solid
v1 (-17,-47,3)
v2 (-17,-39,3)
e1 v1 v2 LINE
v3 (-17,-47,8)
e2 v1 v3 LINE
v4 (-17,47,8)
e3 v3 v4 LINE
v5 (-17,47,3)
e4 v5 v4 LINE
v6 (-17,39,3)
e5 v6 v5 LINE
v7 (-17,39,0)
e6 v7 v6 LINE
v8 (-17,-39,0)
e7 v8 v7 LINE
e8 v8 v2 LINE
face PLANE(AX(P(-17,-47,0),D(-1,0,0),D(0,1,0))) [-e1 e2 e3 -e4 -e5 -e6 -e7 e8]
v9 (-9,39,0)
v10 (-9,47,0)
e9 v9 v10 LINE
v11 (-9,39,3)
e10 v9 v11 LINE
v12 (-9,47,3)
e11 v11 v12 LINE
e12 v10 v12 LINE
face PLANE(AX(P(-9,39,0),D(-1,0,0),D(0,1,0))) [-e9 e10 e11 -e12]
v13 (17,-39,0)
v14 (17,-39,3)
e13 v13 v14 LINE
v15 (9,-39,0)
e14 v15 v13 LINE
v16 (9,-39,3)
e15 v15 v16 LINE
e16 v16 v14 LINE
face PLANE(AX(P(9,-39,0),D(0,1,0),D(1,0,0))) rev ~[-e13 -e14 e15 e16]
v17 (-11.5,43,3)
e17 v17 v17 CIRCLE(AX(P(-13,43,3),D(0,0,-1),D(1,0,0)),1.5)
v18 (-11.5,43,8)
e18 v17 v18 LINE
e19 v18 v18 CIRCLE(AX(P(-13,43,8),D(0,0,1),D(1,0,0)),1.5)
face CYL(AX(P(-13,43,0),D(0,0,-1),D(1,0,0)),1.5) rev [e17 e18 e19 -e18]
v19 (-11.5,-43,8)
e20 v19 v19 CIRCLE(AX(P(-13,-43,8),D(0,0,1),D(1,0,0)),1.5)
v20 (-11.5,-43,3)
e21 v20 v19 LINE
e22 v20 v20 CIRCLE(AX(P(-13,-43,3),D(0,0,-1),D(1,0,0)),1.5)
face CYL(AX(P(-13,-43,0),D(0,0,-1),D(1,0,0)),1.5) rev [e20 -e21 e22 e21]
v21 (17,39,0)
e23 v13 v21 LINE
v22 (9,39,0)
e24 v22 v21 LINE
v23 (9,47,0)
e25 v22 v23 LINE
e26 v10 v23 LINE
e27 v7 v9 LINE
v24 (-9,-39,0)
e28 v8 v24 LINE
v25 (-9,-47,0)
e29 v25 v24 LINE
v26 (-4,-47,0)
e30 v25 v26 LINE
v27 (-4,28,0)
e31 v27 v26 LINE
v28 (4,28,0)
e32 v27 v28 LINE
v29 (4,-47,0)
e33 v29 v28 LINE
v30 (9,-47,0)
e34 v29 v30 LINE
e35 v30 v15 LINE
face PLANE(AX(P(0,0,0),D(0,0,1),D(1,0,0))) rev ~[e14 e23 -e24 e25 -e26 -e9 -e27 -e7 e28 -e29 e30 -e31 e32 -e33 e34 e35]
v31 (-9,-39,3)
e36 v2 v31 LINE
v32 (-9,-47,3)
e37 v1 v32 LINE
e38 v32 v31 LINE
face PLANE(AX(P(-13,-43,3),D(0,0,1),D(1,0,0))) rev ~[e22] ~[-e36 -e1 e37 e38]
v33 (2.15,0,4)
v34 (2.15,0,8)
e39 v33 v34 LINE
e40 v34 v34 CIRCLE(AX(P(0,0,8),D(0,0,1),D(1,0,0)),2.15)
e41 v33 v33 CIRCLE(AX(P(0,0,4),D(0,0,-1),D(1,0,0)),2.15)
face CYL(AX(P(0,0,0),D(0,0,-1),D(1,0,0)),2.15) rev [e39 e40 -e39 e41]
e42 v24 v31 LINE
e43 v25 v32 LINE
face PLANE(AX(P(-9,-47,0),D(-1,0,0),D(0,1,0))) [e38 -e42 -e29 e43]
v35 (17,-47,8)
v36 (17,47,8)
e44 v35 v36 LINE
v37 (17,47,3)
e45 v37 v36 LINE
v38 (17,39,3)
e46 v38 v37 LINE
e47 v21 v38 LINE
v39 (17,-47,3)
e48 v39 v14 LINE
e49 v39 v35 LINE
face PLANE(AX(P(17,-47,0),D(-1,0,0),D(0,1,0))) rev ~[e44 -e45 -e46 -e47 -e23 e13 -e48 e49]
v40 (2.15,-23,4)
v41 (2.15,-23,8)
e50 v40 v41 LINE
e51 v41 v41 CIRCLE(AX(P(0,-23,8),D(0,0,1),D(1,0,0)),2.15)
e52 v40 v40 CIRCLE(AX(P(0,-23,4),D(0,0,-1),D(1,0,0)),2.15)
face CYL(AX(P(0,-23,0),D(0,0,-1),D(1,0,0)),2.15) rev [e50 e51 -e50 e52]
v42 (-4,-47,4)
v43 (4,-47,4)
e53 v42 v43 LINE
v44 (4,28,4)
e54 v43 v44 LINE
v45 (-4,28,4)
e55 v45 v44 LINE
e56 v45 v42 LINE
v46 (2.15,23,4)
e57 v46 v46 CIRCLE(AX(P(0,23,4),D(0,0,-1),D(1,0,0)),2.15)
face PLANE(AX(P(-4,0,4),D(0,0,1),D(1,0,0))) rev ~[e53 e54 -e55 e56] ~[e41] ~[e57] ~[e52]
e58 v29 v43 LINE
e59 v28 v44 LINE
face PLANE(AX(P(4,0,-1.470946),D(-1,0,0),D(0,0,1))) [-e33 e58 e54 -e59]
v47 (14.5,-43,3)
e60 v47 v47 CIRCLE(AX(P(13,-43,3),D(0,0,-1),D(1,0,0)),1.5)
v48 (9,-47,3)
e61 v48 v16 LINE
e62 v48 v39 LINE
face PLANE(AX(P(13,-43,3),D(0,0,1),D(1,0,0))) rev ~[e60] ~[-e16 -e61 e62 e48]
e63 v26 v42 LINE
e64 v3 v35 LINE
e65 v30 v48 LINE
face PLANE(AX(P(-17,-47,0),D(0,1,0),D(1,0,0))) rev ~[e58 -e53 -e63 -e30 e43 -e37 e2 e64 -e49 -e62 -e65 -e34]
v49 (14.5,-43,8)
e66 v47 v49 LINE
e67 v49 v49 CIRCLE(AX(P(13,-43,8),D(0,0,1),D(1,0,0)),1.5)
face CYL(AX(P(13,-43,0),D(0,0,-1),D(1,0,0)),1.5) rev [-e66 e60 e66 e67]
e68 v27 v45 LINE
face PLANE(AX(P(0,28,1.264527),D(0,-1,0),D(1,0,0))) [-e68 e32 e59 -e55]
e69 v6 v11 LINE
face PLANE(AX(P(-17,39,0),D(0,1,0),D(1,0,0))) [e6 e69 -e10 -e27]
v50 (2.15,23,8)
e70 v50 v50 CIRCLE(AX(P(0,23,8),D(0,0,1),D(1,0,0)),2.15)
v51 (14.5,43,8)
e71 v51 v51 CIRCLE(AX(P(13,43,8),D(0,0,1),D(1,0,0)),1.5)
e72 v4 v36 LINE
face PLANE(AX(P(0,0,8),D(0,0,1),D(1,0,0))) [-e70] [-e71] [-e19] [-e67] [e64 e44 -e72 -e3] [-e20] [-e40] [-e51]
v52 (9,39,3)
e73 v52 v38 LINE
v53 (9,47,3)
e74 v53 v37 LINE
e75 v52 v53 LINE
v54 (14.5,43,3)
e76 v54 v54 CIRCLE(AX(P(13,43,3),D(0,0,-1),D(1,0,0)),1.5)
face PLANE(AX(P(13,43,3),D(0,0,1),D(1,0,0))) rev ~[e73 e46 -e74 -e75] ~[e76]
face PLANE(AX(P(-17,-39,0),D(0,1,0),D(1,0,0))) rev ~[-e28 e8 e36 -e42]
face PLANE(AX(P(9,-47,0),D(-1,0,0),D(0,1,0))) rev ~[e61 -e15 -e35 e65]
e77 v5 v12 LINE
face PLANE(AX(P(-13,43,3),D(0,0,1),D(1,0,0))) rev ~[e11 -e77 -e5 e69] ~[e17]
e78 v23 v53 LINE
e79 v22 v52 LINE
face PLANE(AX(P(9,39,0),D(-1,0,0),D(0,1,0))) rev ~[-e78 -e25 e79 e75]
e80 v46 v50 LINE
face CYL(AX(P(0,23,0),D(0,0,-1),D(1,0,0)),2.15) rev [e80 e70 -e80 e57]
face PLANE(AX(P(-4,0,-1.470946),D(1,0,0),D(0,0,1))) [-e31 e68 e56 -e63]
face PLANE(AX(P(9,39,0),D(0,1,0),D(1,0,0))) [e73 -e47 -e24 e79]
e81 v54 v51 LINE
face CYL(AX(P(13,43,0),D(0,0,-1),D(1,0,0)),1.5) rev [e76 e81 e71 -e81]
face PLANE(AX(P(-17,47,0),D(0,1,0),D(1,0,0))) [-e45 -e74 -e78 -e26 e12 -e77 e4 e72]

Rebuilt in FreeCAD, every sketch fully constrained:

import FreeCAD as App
import Part
import Sketcher
Q = App.Units.Quantity


def add_polygon(sketch, points):
    """Adds a closed chain of lines whose ends are joined by coincident constraints."""
    first, n = sketch.GeometryCount, len(points)
    for a, b in zip(points, points[1:] + points[:1]):
        sketch.addGeometry(Part.LineSegment(App.Vector(*a, 0), App.Vector(*b, 0)), False)
    for i in range(n):
        sketch.addConstraint(Sketcher.Constraint("Coincident", first + i, 2, first + (i + 1) % n, 1))

doc = App.newDocument("Part")
body = doc.addObject("PartDesign::Body", "Body")

sketch1 = doc.addObject("Sketcher::SketchObject", "Sketch")
body.addObject(sketch1)
sketch1.AttachmentSupport = (doc.XY_Plane, [""])
sketch1.MapMode = "FlatFace"
add_polygon(sketch1, [(-17, 47), (-17, -47), (17, -47), (17, 47)])
sketch1.addGeometry(Part.Circle(App.Vector(-13, -43, 0), App.Vector(0, 0, 1), 1.5), False)
sketch1.addGeometry(Part.Circle(App.Vector(0, -23, 0), App.Vector(0, 0, 1), 2.1), False)
sketch1.addGeometry(Part.Circle(App.Vector(13, -43, 0), App.Vector(0, 0, 1), 1.5), False)
sketch1.addGeometry(Part.Circle(App.Vector(-13, 43, 0), App.Vector(0, 0, 1), 1.5), False)
sketch1.addGeometry(Part.Circle(App.Vector(0, 0, 0), App.Vector(0, 0, 1), 2.1), False)
sketch1.addGeometry(Part.Circle(App.Vector(0, 23, 0), App.Vector(0, 0, 1), 2.1), False)
sketch1.addGeometry(Part.Circle(App.Vector(13, 43, 0), App.Vector(0, 0, 1), 1.5), False)
sketch1.addConstraint([
    Sketcher.Constraint("Vertical", 0),
    Sketcher.Constraint("Horizontal", 1),
    Sketcher.Constraint("Vertical", 2),
    Sketcher.Constraint("Horizontal", 3),
    Sketcher.Constraint("Coincident", 8, 3, -1, 1),
    Sketcher.Constraint("Equal", 4, 6),
    Sketcher.Constraint("Equal", 6, 7),
    Sketcher.Constraint("Equal", 5, 8),
    Sketcher.Constraint("Equal", 8, 9),
    Sketcher.Constraint("Equal", 7, 10),
    Sketcher.Constraint("Symmetric", 6, 3, 7, 3, -1, 1),
    Sketcher.Constraint("Symmetric", 5, 3, 9, 3, -1, 1),
    Sketcher.Constraint("Symmetric", 4, 3, 10, 3, -1, 1),
    Sketcher.Constraint("Symmetric", 0, 2, 2, 2, -1, 1),
    Sketcher.Constraint("Symmetric", 4, 3, 6, 3, -2),
    Sketcher.Constraint("PointOnObject", 5, 3, -2),
    Sketcher.Constraint("Diameter", 4, Q("3 mm")),
    Sketcher.Constraint("Diameter", 5, Q("4.3 mm")),
    Sketcher.Constraint("DistanceX", 1, 1, 1, 2, Q("34 mm")),
    Sketcher.Constraint("DistanceY", 0, 2, 0, 1, Q("94 mm")),
    Sketcher.Constraint("DistanceX", 4, 3, -1, 1, Q("13 mm")),
    Sketcher.Constraint("DistanceY", 4, 3, -1, 1, Q("43 mm")),
    Sketcher.Constraint("DistanceY", 5, 3, -1, 1, Q("23 mm")),
])
pad1 = doc.addObject("PartDesign::Pad", "Pad")
body.addObject(pad1)
pad1.Profile = sketch1
pad1.Length = 8

sketch2 = doc.addObject("Sketcher::SketchObject", "Sketch001")
body.addObject(sketch2)
sketch2.AttachmentSupport = (doc.XY_Plane, [""])
sketch2.MapMode = "FlatFace"
add_polygon(sketch2, [(-17, 47), (-17, 39), (-9, 39), (-9, 47)])
add_polygon(sketch2, [(9, 47), (9, 39), (17, 39), (17, 47)])
add_polygon(sketch2, [(-17, -39), (-17, -47), (-9, -47), (-9, -39)])
add_polygon(sketch2, [(9, -39), (9, -47), (17, -47), (17, -39)])
sketch2.addConstraint([
    Sketcher.Constraint("Vertical", 0),
    Sketcher.Constraint("Horizontal", 1),
    Sketcher.Constraint("Vertical", 2),
    Sketcher.Constraint("Horizontal", 3),
    Sketcher.Constraint("Vertical", 4),
    Sketcher.Constraint("Horizontal", 5),
    Sketcher.Constraint("Vertical", 6),
    Sketcher.Constraint("Horizontal", 7),
    Sketcher.Constraint("Vertical", 8),
    Sketcher.Constraint("Horizontal", 9),
    Sketcher.Constraint("Vertical", 10),
    Sketcher.Constraint("Horizontal", 11),
    Sketcher.Constraint("Vertical", 12),
    Sketcher.Constraint("Horizontal", 13),
    Sketcher.Constraint("Vertical", 14),
    Sketcher.Constraint("Horizontal", 15),
    Sketcher.Constraint("Symmetric", 6, 2, 8, 2, -1, 1),
    Sketcher.Constraint("Symmetric", 4, 2, 10, 2, -1, 1),
    Sketcher.Constraint("Symmetric", 2, 2, 12, 2, -1, 1),
    Sketcher.Constraint("Symmetric", 0, 2, 14, 2, -1, 1),
    Sketcher.Constraint("Symmetric", 1, 2, 4, 2, -2),
    Sketcher.Constraint("Symmetric", 3, 2, 6, 2, -2),
    Sketcher.Constraint("Equal", 15, 0),
    Sketcher.Constraint("DistanceX", 1, 1, 1, 2, Q("8 mm")),
    Sketcher.Constraint("DistanceX", 0, 2, -1, 1, Q("17 mm")),
    Sketcher.Constraint("DistanceY", -1, 1, 0, 2, Q("39 mm")),
])
pocket1 = doc.addObject("PartDesign::Pocket", "Pocket")
body.addObject(pocket1)
pocket1.Profile = sketch2
pocket1.Length = 3
pocket1.Reversed = True

sketch3 = doc.addObject("Sketcher::SketchObject", "Sketch002")
body.addObject(sketch3)
sketch3.AttachmentSupport = (doc.XZ_Plane, [""])
sketch3.MapMode = "FlatFace"
add_polygon(sketch3, [(-4, 4), (-4, -1), (4, -1), (4, 4)])
sketch3.addConstraint([
    Sketcher.Constraint("Vertical", 0),
    Sketcher.Constraint("Horizontal", 1),
    Sketcher.Constraint("Vertical", 2),
    Sketcher.Constraint("Horizontal", 3),
    Sketcher.Constraint("DistanceX", 1, 1, 1, 2, Q("8 mm")),
    Sketcher.Constraint("DistanceX", 0, 2, -1, 1, Q("4 mm")),
    Sketcher.Constraint("DistanceY", -1, 1, 2, 2, Q("4 mm")),
    Sketcher.Constraint("DistanceY", 0, 2, 0, 1, Q("5.470946 mm")),
])
pocket2 = doc.addObject("PartDesign::Pocket", "Pocket001")
body.addObject(pocket2)
pocket2.Profile = sketch3
pocket2.Type = "TwoLengths"
pocket2.Length = 100
pocket2.Length2 = 28
pocket2.Reversed = True

doc.recompute()
